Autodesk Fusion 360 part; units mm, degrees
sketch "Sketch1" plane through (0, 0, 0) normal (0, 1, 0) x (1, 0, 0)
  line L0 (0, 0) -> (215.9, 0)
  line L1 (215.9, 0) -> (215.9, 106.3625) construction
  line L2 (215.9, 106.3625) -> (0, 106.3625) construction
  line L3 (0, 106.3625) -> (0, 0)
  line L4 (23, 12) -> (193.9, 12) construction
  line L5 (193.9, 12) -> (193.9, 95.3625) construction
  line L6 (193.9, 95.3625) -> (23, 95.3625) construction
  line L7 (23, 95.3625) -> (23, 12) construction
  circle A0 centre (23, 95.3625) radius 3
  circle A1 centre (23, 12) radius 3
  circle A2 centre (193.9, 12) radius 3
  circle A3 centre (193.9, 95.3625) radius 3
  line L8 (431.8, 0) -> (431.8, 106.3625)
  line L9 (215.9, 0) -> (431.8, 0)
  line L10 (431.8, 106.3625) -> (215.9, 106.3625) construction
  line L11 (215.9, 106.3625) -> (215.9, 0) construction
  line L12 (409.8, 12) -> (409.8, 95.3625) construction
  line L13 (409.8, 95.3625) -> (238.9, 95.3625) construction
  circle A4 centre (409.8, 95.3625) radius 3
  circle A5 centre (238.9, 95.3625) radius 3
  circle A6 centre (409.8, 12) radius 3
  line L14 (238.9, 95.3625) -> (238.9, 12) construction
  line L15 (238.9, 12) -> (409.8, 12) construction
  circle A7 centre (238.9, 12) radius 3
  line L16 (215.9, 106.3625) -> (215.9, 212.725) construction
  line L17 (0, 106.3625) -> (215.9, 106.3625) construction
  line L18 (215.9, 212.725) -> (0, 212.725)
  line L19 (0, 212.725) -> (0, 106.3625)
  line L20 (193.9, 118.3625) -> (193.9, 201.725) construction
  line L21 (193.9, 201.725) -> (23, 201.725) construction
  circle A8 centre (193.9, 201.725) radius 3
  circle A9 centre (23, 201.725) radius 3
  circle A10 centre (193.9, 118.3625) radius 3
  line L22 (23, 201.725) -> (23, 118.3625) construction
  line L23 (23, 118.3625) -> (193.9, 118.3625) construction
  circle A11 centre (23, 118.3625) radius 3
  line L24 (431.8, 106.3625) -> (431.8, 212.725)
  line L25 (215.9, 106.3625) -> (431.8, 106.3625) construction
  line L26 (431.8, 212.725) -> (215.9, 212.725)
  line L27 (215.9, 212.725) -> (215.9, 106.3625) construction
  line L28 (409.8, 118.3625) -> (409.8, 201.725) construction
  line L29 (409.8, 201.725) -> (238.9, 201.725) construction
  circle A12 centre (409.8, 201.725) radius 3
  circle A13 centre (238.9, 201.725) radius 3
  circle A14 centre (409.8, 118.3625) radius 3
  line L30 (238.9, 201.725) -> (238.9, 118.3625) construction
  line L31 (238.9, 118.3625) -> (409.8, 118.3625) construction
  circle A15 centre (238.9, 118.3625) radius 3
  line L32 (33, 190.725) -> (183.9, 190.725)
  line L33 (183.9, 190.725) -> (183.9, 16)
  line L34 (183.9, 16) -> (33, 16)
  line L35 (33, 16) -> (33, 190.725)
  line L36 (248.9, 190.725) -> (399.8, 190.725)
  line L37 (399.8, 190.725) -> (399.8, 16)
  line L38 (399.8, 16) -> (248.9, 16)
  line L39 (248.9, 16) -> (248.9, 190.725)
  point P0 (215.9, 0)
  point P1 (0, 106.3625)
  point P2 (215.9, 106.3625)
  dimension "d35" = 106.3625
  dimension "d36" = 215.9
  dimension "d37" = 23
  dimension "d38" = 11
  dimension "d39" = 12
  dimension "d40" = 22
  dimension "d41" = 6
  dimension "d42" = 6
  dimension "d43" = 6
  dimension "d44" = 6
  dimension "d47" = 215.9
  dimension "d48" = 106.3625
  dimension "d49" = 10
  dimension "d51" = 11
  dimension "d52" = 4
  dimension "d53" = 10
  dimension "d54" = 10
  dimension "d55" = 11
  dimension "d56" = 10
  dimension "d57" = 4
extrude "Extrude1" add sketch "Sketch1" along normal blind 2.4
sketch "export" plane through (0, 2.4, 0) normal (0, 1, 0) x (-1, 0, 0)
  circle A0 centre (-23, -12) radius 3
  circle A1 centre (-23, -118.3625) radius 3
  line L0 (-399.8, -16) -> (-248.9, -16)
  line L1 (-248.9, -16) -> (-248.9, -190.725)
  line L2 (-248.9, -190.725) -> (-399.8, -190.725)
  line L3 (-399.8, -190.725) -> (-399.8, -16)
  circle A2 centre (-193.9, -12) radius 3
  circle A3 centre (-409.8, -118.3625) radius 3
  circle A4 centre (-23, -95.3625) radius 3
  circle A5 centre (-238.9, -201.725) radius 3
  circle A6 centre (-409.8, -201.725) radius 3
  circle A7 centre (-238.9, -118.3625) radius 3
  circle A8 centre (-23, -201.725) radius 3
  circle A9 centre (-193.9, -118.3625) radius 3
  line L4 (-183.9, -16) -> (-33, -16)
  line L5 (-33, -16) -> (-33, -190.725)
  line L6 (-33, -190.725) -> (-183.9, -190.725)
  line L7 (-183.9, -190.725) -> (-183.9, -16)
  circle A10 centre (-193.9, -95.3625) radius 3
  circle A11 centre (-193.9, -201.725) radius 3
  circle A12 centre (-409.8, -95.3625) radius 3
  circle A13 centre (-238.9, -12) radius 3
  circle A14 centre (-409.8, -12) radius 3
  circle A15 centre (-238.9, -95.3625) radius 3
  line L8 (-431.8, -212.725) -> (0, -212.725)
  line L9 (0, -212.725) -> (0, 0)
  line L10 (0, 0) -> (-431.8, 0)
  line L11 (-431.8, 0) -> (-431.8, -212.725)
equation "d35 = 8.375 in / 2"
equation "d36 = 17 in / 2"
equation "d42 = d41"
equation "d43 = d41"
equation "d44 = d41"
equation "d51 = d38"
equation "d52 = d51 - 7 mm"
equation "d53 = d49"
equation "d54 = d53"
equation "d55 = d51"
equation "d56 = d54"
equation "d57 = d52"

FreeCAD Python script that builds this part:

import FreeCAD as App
import Part
import Sketcher

V = App.Vector


def add_polygon(sketch, points):
    """Adds a closed chain of lines whose ends are joined by coincident constraints."""
    first, n = sketch.GeometryCount, len(points)
    for a, b in zip(points, points[1:] + points[:1]):
        sketch.addGeometry(Part.LineSegment(App.Vector(*a, 0), App.Vector(*b, 0)), False)
    for i in range(n):
        sketch.addConstraint(Sketcher.Constraint("Coincident", first + i, 2, first + (i + 1) % n, 1))

doc = App.newDocument("Part")
body = doc.addObject("PartDesign::Body", "Body")

sketch1 = doc.addObject("Sketcher::SketchObject", "Sketch")
body.addObject(sketch1)
sketch1.AttachmentSupport = (doc.XZ_Plane, [""])
sketch1.MapMode = "FlatFace"
add_polygon(sketch1, [(0, -212.7), (0, 0), (431.8, 0), (431.8, -212.7)])
sketch1.addGeometry(Part.Circle(V(23, -12, 0), V(0, 0, 1), 3), False)
sketch1.addGeometry(Part.Circle(V(193.9, -12, 0), V(0, 0, 1), 3), False)
sketch1.addGeometry(Part.Circle(V(23, -95.4, 0), V(0, 0, 1), 3), False)
add_polygon(sketch1, [(33, -16), (33, -190.7), (183.9, -190.7), (183.9, -16)])
sketch1.addGeometry(Part.Circle(V(193.9, -95.4, 0), V(0, 0, 1), 3), False)
sketch1.addGeometry(Part.Circle(V(238.9, -12, 0), V(0, 0, 1), 3), False)
sketch1.addGeometry(Part.Circle(V(409.8, -12, 0), V(0, 0, 1), 3), False)
sketch1.addGeometry(Part.Circle(V(238.9, -95.4, 0), V(0, 0, 1), 3), False)
add_polygon(sketch1, [(248.9, -16), (248.9, -190.7), (399.8, -190.7), (399.8, -16)])
sketch1.addGeometry(Part.Circle(V(409.8, -95.4, 0), V(0, 0, 1), 3), False)
sketch1.addGeometry(Part.Circle(V(23, -118.4, 0), V(0, 0, 1), 3), False)
sketch1.addGeometry(Part.Circle(V(193.9, -118.4, 0), V(0, 0, 1), 3), False)
sketch1.addGeometry(Part.Circle(V(23, -201.7, 0), V(0, 0, 1), 3), False)
sketch1.addGeometry(Part.Circle(V(193.9, -201.7, 0), V(0, 0, 1), 3), False)
sketch1.addGeometry(Part.Circle(V(238.9, -118.4, 0), V(0, 0, 1), 3), False)
sketch1.addGeometry(Part.Circle(V(409.8, -118.4, 0), V(0, 0, 1), 3), False)
sketch1.addGeometry(Part.Circle(V(238.9, -201.7, 0), V(0, 0, 1), 3), False)
sketch1.addGeometry(Part.Circle(V(409.8, -201.7, 0), V(0, 0, 1), 3), False)
sketch1.addConstraint([
    Sketcher.Constraint("Vertical", 0),
    Sketcher.Constraint("Horizontal", 1),
    Sketcher.Constraint("Vertical", 2),
    Sketcher.Constraint("Horizontal", 3),
    Sketcher.Constraint("Vertical", 7),
    Sketcher.Constraint("Horizontal", 8),
    Sketcher.Constraint("Vertical", 9),
    Sketcher.Constraint("Horizontal", 10),
    Sketcher.Constraint("Vertical", 15),
    Sketcher.Constraint("Horizontal", 16),
    Sketcher.Constraint("Vertical", 17),
    Sketcher.Constraint("Horizontal", 18),
    Sketcher.Constraint("Coincident", 0, 2, -1, 1),
    Sketcher.Constraint("Equal", 4, 5),
    Sketcher.Constraint("Equal", 5, 6),
    Sketcher.Constraint("Equal", 6, 11),
    Sketcher.Constraint("Equal", 11, 12),
    Sketcher.Constraint("Equal", 12, 13),
    Sketcher.Constraint("Equal", 13, 14),
    Sketcher.Constraint("Equal", 14, 19),
    Sketcher.Constraint("Equal", 19, 20),
    Sketcher.Constraint("Equal", 20, 21),
    Sketcher.Constraint("Equal", 21, 22),
    Sketcher.Constraint("Equal", 22, 23),
    Sketcher.Constraint("Equal", 23, 24),
    Sketcher.Constraint("Equal", 24, 25),
    Sketcher.Constraint("Equal", 25, 26),
    Sketcher.Constraint("Equal", 26, 27),
    Sketcher.Constraint("Horizontal", 4, 3, 5, 3),
    Sketcher.Constraint("Horizontal", 6, 3, 11, 3),
    Sketcher.Constraint("Horizontal", 5, 3, 12, 3),
    Sketcher.Constraint("Horizontal", 12, 3, 13, 3),
    Sketcher.Constraint("Horizontal", 11, 3, 14, 3),
    Sketcher.Constraint("Horizontal", 14, 3, 19, 3),
    Sketcher.Constraint("Horizontal", 20, 3, 21, 3),
    Sketcher.Constraint("Horizontal", 22, 3, 23, 3),
    Sketcher.Constraint("Horizontal", 21, 3, 24, 3),
    Sketcher.Constraint("Horizontal", 24, 3, 25, 3),
    Sketcher.Constraint("Horizontal", 23, 3, 26, 3),
    Sketcher.Constraint("Horizontal", 26, 3, 27, 3),
    Sketcher.Constraint("Horizontal", 8, 2, 15, 2),
    Sketcher.Constraint("Horizontal", 10, 2, 17, 2),
    Sketcher.Constraint("Vertical", 4, 3, 6, 3),
    Sketcher.Constraint("Vertical", 5, 3, 11, 3),
    Sketcher.Constraint("Vertical", 12, 3, 14, 3),
    Sketcher.Constraint("Vertical", 13, 3, 19, 3),
    Sketcher.Constraint("Vertical", 6, 3, 20, 3),
    Sketcher.Constraint("Vertical", 11, 3, 21, 3),
    Sketcher.Constraint("Vertical", 20, 3, 22, 3),
    Sketcher.Constraint("Vertical", 21, 3, 23, 3),
    Sketcher.Constraint("Vertical", 14, 3, 24, 3),
    Sketcher.Constraint("Vertical", 19, 3, 25, 3),
    Sketcher.Constraint("Vertical", 24, 3, 26, 3),
    Sketcher.Constraint("Vertical", 25, 3, 27, 3),
    Sketcher.Constraint("Equal", 10, 16),
    Sketcher.Constraint("Diameter", 4, 6.0),
    Sketcher.Constraint("DistanceX", -1, 1, 4, 3, 23.0),
    Sketcher.Constraint("DistanceY", 4, 3, -1, 1, 12.0),
    Sketcher.Constraint("DistanceY", 20, 3, 6, 3, 23.0),
    Sketcher.Constraint("DistanceX", 13, 3, 1, 2, 22.0),
    Sketcher.Constraint("DistanceY", 2, 2, 27, 3, 11.0),
    Sketcher.Constraint("DistanceX", 22, 3, 7, 2, 10.0),
    Sketcher.Constraint("DistanceY", 22, 3, 7, 2, 11.0),
    Sketcher.Constraint("DistanceX", 8, 2, 23, 3, 10.0),
    Sketcher.Constraint("DistanceY", 9, 2, 5, 3, 4.0),
    Sketcher.Constraint("DistanceX", 26, 3, 15, 2, 10.0),
    Sketcher.Constraint("DistanceX", 16, 2, 27, 3, 10.0),
    Sketcher.Constraint("DistanceX", 4, 3, 12, 3, 215.9),
    Sketcher.Constraint("DistanceX", 1, 1, 1, 2, 431.8),
    Sketcher.Constraint("DistanceY", 20, 3, 4, 3, 106.3625),
    Sketcher.Constraint("DistanceY", 22, 3, 6, 3, 106.3625),
])
pad1 = doc.addObject("PartDesign::Pad", "Pad")
body.addObject(pad1)
pad1.Profile = sketch1
pad1.Length = 2.4
pad1.Reversed = True

doc.recompute()
